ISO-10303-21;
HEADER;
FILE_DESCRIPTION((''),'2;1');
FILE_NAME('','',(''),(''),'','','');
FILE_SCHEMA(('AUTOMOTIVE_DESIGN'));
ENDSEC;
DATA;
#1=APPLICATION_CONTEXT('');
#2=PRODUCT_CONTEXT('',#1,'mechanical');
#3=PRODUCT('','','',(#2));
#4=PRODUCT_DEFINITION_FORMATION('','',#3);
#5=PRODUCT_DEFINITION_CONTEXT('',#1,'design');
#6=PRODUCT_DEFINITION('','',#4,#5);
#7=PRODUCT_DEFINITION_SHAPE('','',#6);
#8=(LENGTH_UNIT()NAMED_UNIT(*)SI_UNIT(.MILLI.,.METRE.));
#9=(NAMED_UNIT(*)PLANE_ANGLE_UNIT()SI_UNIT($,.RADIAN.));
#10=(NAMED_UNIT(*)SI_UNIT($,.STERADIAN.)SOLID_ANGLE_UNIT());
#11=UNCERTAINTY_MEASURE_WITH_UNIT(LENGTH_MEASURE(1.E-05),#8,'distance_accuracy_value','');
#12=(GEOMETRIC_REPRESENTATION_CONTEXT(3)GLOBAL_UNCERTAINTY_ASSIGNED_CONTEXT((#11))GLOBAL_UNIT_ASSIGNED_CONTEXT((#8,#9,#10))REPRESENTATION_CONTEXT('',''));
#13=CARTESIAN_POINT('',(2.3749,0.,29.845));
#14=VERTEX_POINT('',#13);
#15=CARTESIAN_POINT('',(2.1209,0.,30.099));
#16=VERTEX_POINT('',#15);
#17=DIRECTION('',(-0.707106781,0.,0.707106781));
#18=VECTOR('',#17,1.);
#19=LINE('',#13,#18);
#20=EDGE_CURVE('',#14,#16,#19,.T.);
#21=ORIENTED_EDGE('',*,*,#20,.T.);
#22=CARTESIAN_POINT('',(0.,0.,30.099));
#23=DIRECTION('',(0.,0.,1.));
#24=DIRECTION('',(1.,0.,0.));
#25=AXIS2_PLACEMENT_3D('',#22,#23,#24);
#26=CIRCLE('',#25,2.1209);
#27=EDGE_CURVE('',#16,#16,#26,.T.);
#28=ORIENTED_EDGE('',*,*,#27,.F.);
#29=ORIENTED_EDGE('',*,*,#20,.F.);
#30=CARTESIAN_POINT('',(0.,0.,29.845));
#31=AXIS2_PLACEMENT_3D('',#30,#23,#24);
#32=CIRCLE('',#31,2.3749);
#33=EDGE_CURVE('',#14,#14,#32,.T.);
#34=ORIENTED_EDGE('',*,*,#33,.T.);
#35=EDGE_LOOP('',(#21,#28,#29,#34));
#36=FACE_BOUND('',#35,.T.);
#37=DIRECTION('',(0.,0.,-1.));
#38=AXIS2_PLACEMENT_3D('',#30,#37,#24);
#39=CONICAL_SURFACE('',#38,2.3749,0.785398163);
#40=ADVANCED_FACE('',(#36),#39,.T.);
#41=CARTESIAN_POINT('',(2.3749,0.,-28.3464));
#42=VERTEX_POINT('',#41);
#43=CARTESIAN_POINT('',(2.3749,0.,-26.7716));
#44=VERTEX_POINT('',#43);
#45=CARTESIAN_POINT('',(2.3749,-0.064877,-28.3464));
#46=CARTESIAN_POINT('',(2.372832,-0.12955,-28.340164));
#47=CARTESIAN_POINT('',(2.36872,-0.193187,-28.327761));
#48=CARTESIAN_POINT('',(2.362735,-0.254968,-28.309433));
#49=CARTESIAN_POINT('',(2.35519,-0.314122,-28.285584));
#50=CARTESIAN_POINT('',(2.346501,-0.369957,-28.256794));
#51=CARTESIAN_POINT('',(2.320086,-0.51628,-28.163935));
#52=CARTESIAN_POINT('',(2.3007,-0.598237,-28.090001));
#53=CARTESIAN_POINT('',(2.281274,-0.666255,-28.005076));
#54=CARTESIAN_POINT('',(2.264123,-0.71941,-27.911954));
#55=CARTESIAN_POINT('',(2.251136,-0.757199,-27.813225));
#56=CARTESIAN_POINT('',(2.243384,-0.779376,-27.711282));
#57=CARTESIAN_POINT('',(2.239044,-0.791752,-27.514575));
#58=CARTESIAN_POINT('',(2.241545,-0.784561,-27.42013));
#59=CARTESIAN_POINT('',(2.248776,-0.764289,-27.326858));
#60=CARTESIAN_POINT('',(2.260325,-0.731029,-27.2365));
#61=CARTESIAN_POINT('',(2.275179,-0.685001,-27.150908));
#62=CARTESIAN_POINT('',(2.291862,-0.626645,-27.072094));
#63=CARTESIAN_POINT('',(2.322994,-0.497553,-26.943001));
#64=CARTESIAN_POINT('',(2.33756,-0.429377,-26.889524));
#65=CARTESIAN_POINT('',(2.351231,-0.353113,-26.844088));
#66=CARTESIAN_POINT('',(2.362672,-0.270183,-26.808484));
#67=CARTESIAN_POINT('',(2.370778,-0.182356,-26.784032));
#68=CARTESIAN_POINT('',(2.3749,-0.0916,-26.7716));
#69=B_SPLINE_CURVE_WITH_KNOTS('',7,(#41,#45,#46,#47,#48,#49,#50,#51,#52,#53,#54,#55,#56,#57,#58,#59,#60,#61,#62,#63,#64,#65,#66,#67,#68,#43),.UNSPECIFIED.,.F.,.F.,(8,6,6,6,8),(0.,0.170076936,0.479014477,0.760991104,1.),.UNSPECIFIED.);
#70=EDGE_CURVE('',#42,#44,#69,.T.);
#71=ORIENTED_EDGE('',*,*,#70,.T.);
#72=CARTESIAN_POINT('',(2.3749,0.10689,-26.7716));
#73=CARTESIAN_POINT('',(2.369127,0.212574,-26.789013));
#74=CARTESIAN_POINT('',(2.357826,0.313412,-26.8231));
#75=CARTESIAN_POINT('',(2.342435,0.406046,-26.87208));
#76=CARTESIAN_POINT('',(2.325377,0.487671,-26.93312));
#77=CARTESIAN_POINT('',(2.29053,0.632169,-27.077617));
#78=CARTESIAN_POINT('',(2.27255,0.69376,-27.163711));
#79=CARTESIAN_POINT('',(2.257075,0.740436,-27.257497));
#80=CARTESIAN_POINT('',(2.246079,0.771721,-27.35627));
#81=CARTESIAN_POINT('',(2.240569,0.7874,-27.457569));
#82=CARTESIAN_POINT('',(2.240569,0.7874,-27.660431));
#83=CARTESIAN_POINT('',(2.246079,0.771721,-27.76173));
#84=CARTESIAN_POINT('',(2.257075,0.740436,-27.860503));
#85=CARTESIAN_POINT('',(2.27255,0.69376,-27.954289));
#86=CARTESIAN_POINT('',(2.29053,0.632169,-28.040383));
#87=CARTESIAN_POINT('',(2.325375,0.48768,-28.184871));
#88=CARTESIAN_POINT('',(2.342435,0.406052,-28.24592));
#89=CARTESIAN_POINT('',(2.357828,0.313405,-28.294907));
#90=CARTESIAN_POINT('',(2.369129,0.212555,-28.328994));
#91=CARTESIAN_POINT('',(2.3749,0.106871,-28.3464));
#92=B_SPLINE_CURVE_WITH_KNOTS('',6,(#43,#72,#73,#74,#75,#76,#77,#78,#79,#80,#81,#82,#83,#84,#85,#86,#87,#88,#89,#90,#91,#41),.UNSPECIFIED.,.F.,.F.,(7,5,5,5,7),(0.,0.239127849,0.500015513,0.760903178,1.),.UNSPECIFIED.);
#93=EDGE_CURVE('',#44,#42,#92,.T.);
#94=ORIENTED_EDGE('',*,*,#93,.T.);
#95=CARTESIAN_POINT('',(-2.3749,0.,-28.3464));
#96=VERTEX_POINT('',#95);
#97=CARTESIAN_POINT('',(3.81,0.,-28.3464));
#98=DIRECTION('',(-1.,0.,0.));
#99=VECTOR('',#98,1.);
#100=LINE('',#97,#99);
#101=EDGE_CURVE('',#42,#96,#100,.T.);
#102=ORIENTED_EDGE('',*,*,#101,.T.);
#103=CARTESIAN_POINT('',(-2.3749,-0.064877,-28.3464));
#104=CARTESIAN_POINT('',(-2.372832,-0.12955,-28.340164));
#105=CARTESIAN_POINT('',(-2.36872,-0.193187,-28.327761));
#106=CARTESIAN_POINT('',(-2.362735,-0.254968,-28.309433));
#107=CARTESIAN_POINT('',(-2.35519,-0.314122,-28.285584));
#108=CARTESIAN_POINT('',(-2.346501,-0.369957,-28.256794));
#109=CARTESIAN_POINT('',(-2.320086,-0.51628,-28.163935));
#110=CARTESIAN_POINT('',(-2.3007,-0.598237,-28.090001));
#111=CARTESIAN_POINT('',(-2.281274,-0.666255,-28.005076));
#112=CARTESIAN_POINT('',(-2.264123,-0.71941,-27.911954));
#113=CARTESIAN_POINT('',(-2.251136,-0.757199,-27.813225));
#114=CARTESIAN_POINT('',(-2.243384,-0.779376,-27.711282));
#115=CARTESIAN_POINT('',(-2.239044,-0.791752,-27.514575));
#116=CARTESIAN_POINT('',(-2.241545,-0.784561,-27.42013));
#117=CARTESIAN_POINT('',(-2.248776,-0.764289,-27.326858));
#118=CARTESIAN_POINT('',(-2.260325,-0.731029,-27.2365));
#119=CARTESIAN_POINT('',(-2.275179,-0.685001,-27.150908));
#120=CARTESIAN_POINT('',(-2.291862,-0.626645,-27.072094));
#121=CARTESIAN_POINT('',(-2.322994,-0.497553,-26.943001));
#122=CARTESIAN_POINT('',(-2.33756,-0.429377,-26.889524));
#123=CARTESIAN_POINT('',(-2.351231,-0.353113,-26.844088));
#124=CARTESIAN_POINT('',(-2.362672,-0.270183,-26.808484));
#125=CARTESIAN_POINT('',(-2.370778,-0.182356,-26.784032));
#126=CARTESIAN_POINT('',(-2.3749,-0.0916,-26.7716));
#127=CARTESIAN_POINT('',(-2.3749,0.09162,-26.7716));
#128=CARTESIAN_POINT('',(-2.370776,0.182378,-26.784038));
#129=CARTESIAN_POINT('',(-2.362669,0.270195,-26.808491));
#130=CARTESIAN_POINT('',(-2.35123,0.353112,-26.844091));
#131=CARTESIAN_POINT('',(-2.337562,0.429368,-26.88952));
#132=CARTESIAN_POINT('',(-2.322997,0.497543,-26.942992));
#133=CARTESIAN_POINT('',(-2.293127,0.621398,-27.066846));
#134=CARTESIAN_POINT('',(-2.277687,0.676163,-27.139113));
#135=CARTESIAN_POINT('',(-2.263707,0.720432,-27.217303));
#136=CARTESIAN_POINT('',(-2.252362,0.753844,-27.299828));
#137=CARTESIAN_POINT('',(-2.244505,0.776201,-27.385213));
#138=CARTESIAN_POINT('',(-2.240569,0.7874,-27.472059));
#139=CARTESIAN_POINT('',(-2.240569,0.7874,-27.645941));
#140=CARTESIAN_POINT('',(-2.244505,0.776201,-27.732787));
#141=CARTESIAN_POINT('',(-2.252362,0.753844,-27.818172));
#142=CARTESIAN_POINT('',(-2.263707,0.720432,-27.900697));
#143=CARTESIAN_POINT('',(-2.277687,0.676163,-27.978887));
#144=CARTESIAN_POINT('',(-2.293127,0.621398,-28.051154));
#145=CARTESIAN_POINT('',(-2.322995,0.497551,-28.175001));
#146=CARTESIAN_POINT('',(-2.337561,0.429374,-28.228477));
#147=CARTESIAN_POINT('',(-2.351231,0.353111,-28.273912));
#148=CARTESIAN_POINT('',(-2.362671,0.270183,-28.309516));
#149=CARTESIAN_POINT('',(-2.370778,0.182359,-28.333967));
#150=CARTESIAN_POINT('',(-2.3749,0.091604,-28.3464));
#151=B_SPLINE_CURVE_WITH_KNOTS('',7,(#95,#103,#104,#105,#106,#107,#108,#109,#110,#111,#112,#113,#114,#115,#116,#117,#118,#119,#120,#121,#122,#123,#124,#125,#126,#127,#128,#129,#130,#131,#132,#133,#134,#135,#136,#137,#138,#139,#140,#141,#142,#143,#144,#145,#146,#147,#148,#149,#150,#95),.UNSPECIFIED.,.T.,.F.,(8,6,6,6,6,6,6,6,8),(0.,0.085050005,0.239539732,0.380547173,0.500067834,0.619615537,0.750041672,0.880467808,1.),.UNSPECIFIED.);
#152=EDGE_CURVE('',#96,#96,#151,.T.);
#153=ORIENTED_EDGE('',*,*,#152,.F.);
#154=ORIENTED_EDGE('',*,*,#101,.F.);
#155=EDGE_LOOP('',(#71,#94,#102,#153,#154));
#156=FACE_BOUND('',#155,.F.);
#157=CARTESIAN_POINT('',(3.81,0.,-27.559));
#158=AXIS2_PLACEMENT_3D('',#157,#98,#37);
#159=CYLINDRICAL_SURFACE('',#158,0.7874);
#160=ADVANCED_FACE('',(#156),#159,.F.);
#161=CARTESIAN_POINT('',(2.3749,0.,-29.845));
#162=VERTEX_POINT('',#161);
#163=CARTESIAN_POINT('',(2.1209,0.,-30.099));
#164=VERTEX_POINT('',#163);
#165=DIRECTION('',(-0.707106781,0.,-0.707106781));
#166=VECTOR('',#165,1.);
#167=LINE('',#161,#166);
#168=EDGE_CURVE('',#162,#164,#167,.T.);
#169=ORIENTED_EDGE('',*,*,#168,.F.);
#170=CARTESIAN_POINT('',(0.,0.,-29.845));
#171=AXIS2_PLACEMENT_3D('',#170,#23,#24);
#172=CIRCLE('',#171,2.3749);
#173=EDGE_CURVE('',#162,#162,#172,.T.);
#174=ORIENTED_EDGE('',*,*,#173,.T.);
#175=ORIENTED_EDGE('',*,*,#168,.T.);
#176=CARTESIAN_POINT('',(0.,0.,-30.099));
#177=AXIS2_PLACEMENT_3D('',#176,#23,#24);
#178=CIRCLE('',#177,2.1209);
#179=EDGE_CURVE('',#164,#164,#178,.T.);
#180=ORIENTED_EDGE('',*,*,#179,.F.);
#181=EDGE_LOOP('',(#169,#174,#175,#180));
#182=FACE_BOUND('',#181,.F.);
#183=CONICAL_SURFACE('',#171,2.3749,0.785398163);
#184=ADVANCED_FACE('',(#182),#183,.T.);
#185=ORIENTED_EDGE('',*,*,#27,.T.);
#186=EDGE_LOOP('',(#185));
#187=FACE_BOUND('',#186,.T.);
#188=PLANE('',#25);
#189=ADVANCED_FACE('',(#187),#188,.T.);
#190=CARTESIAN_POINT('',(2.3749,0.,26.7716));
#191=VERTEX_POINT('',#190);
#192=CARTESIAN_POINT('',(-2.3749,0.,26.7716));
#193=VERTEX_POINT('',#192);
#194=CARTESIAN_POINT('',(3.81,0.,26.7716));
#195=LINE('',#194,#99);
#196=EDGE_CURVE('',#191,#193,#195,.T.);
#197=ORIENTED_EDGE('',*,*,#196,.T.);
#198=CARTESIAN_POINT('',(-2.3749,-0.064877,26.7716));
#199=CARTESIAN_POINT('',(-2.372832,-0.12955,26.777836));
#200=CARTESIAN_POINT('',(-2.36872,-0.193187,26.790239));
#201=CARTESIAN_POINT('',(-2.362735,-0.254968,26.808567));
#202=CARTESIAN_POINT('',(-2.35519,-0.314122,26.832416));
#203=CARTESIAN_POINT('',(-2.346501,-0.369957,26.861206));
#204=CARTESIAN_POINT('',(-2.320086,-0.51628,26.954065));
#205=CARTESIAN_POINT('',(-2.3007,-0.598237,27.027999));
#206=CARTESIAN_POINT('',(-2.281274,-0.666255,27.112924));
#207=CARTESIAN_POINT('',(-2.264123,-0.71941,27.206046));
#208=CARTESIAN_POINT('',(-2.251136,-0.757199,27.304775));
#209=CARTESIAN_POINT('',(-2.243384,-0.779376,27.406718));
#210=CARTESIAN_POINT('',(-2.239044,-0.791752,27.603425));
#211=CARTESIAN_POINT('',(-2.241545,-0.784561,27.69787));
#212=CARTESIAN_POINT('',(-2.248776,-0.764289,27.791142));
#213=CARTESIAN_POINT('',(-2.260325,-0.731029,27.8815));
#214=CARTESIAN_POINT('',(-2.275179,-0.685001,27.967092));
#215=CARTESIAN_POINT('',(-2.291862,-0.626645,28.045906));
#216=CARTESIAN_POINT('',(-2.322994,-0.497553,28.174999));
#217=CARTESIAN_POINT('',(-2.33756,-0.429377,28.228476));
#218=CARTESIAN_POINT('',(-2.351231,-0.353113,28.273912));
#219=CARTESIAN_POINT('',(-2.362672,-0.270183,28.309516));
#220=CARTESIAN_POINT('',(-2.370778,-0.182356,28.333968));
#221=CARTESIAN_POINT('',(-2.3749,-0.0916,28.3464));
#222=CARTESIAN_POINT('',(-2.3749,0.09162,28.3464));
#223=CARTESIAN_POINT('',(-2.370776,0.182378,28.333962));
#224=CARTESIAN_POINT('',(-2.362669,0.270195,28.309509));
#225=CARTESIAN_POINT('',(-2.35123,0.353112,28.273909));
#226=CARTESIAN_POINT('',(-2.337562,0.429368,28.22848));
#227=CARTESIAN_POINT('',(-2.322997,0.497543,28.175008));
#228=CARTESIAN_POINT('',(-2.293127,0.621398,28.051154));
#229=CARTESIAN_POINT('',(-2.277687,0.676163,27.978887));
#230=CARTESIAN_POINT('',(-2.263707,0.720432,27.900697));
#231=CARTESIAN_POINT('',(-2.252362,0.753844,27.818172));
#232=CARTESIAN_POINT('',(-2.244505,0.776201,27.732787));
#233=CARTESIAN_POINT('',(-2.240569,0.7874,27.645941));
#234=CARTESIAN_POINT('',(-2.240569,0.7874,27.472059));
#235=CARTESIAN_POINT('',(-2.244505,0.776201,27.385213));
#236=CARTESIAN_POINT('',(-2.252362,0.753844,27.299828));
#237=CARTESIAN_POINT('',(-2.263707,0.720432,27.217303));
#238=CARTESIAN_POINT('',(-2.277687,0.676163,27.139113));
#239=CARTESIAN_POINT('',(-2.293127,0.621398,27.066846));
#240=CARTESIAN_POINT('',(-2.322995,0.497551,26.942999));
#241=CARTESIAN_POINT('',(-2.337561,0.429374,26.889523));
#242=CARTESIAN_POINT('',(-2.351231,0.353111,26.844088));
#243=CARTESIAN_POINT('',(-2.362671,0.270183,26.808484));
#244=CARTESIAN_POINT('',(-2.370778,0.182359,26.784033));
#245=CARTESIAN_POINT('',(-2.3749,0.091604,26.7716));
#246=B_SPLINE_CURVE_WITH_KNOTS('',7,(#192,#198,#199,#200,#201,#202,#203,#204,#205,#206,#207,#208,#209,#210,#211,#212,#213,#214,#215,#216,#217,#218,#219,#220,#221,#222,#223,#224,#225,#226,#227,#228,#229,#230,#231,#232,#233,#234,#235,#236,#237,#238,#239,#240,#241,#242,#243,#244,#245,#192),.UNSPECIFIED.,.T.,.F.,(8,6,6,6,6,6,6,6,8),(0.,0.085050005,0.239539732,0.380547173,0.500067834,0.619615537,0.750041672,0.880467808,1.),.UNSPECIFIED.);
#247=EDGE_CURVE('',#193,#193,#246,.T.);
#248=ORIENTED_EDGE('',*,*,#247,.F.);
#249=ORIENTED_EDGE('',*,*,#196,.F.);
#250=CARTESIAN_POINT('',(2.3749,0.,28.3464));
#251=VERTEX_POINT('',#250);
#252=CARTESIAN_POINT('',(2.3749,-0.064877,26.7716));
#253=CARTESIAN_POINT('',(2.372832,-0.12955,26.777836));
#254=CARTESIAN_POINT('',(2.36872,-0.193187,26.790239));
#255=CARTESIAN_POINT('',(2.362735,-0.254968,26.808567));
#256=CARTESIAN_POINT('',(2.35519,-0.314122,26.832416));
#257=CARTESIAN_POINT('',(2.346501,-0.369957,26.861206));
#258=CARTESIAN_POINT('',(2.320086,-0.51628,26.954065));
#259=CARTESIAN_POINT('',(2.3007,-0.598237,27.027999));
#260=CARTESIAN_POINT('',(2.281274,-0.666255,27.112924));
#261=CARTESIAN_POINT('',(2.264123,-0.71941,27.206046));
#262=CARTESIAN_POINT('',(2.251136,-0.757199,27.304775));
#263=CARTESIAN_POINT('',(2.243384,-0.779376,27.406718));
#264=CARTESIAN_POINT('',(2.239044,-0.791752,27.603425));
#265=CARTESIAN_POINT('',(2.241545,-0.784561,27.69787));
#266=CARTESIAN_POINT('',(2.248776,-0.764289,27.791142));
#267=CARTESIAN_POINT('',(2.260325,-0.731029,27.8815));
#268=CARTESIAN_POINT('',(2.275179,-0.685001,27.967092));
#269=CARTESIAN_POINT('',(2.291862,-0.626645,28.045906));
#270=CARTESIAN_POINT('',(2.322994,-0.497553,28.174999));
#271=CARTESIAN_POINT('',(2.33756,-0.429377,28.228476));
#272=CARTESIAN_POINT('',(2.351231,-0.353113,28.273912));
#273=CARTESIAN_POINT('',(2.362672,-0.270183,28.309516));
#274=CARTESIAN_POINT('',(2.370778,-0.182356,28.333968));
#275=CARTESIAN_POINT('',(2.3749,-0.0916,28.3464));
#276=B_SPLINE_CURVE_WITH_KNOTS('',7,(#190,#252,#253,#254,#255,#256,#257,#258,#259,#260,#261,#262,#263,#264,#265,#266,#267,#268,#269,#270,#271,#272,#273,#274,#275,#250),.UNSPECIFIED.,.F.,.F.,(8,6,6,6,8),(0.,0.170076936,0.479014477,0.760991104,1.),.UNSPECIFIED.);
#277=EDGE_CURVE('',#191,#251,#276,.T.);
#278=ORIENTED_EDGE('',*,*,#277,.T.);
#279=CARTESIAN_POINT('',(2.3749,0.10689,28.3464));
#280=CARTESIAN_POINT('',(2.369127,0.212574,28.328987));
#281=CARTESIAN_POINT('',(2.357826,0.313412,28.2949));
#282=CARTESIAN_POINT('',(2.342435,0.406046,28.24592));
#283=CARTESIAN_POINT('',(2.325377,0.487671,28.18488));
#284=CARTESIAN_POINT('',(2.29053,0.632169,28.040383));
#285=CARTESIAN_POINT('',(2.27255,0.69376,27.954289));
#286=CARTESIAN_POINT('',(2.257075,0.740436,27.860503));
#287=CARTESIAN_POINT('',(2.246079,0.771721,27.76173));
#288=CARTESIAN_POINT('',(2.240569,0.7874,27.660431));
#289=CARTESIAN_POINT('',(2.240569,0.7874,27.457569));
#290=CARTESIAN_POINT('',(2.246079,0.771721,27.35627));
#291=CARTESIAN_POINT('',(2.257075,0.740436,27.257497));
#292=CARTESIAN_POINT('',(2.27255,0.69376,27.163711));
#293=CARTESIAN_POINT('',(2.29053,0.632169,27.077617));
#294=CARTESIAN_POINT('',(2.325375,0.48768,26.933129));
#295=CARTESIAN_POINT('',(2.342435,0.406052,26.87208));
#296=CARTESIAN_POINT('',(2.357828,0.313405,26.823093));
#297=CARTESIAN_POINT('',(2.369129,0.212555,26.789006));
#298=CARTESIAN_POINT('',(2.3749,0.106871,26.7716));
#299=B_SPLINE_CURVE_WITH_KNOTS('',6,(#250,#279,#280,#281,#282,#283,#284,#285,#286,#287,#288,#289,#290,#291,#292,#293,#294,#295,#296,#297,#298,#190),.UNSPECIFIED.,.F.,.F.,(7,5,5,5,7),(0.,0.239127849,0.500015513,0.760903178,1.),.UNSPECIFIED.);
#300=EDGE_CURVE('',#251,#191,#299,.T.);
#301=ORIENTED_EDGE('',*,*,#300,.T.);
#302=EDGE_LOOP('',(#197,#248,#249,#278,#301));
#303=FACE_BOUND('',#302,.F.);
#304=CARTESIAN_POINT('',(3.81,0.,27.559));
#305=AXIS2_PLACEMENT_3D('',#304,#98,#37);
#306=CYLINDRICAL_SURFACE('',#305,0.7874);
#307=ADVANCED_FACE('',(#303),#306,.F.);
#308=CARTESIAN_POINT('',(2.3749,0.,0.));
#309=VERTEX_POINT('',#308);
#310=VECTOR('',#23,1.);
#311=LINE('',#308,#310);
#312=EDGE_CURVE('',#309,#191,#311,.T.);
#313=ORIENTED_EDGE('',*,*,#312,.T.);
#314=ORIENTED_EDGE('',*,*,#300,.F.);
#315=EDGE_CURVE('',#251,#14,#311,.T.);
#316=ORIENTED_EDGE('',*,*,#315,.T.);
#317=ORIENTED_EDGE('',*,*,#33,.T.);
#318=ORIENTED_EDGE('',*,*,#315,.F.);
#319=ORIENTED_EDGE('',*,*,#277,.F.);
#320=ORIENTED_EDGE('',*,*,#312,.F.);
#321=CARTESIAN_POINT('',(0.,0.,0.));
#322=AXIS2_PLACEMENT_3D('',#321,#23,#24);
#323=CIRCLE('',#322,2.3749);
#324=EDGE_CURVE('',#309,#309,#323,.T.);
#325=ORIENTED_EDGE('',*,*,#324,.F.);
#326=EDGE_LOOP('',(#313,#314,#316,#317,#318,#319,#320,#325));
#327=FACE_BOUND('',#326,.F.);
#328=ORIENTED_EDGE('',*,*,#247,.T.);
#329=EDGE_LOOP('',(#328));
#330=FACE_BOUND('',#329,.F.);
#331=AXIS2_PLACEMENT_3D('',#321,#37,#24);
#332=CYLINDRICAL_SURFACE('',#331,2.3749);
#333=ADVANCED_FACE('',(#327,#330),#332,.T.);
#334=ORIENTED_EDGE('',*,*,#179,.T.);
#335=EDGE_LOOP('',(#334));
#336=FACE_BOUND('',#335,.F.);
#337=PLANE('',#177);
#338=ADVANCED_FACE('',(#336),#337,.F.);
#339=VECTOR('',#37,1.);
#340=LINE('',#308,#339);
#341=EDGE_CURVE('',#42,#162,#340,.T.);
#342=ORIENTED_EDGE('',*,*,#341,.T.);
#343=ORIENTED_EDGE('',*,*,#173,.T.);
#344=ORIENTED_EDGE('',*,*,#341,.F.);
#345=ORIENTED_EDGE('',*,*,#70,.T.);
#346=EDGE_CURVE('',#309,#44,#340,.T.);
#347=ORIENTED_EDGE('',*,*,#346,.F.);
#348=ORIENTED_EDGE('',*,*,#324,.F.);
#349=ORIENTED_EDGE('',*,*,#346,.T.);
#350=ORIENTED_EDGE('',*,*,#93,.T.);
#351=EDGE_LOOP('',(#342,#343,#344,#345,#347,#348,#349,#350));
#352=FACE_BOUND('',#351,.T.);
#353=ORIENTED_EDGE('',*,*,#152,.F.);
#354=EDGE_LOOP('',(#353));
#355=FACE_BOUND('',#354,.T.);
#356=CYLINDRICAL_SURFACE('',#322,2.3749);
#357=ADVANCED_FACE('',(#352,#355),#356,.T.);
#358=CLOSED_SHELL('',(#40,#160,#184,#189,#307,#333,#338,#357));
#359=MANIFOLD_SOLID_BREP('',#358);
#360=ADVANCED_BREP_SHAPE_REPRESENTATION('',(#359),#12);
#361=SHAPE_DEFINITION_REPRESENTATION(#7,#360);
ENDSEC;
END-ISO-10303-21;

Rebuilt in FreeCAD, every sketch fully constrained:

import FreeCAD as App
import Part
import Sketcher
Q = App.Units.Quantity


def edges_at(feature, points):
    """Names of the edges that pass closest to the given points."""
    edges = feature.Shape.Edges
    near = lambda p: min(range(len(edges)), key=lambda i: edges[i].distToShape(Part.Vertex(*p))[0])
    return sorted({f"Edge{near(p) + 1}" for p in points})

doc = App.newDocument("Part")
body = doc.addObject("PartDesign::Body", "Body")

sketch1 = body.newObject("Sketcher::SketchObject", "Sketch")
sketch1.AttachmentSupport = (doc.getObject("XY_Plane"), [""])
sketch1.MapMode = "FlatFace"
sketch1.addGeometry(Part.Circle(App.Vector(0, 0, 0), App.Vector(0, 0, 1), 2.3749), False)
sketch1.addConstraint([
    Sketcher.Constraint("Coincident", 0, 3, -1, 1),
    Sketcher.Constraint("Diameter", 0, Q("0.187 in")),
])
pad1 = body.newObject("PartDesign::Pad", "Pad")
pad1.Profile = sketch1
pad1.Length = Q("2.37 in")
pad1.Midplane = True
doc.recompute()

chamfer = body.newObject("PartDesign::Chamfer", "Chamfer")
chamfer.Base = (pad1, edges_at(pad1, [(-2.375, 0, 30.099), (-2.375, 0, -30.099)]))
chamfer.Size = Q("0.01 in")

sketch2 = body.newObject("Sketcher::SketchObject", "Sketch001")
sketch2.AttachmentSupport = (doc.getObject("YZ_Plane"), [""])
sketch2.MapMode = "FlatFace"
sketch2.AttachmentOffset = App.Placement(App.Vector(0, 0, 0.15 * 25.4), App.Rotation())
sketch2.addGeometry([
    Part.Circle(App.Vector(0, 27.559, 0), App.Vector(0, 0, 1), 0.7874),
    Part.Circle(App.Vector(0, -27.559, 0), App.Vector(0, 0, 1), 0.7874),
], False)
sketch2.addConstraint([
    Sketcher.Constraint("Equal", 0, 1),
    Sketcher.Constraint("Symmetric", 0, 3, 1, 3, -1, 1),
    Sketcher.Constraint("PointOnObject", 0, 3, -2),
    Sketcher.Constraint("Diameter", 0, Q("0.062 in")),
    Sketcher.Constraint("DistanceY", 1, 3, 0, 3, Q("2.17 in")),
])
doc.recompute()
hole = body.newObject("PartDesign::Hole", "Hole")
hole.Profile = sketch2
hole.ThreadType = "None"
hole.Diameter = Q("0.062 in")
hole.DepthType = "ThroughAll"

doc.recompute()
